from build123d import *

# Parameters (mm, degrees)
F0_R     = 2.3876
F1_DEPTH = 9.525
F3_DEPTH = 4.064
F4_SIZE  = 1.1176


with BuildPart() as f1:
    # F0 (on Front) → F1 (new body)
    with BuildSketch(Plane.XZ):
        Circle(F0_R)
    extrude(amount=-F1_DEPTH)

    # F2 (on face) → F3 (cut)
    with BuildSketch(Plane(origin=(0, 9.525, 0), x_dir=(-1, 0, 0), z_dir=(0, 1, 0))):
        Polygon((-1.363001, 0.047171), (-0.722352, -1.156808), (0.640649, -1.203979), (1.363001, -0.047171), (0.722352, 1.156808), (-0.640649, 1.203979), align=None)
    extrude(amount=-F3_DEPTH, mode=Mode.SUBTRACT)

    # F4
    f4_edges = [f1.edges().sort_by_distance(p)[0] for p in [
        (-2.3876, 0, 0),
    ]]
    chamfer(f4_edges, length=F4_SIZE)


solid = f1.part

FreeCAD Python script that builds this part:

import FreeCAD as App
import Part
import Sketcher
Q = App.Units.Quantity


def edges_at(feature, points):
    """Names of the edges that pass closest to the given points."""
    edges = feature.Shape.Edges
    near = lambda p: min(range(len(edges)), key=lambda i: edges[i].distToShape(Part.Vertex(*p))[0])
    return sorted({f"Edge{near(p) + 1}" for p in points})

doc = App.newDocument("Part")
body = doc.addObject("PartDesign::Body", "Body")

sketch1 = doc.addObject("Sketcher::SketchObject", "Sketch")
body.addObject(sketch1)
sketch1.AttachmentSupport = (doc.XZ_Plane, [""])
sketch1.MapMode = "FlatFace"
sketch1.addGeometry(Part.Circle(App.Vector(0, 0, 0), App.Vector(0, 0, 1), 2.4), False)
sketch1.addConstraint([
    Sketcher.Constraint("Coincident", 0, 3, -1, 1),
    Sketcher.Constraint("Diameter", 0, Q("0.188 in")),
])
pad1 = doc.addObject("PartDesign::Pad", "Pad")
body.addObject(pad1)
pad1.Profile = sketch1
pad1.Length = Q("0.375 in")
pad1.Reversed = True

sketch2 = doc.addObject("Sketcher::SketchObject", "Sketch001")
body.addObject(sketch2)
sketch2.AttachmentSupport = (doc.XZ_Plane, [""])
sketch2.MapMode = "FlatFace"
sketch2.AttachmentOffset = App.Placement(App.Vector(0, 0, -0.375 * 25.4), App.Rotation())
sketch2.addGeometry([
    Part.LineSegment(App.Vector(1.4, 0, 0), App.Vector(0.7, -1.2, 0)),
    Part.LineSegment(App.Vector(0.7, -1.2, 0), App.Vector(-0.6, -1.2, 0)),
    Part.LineSegment(App.Vector(-0.6, -1.2, 0), App.Vector(-1.4, 0, 0)),
    Part.LineSegment(App.Vector(-1.4, 0, 0), App.Vector(-0.7, 1.2, 0)),
    Part.LineSegment(App.Vector(-0.7, 1.2, 0), App.Vector(0.6, 1.2, 0)),
    Part.LineSegment(App.Vector(0.6, 1.2, 0), App.Vector(1.4, 0, 0)),
], False)
sketch2.addConstraint([
    Sketcher.Constraint("Coincident", 0, 2, 1, 1),
    Sketcher.Constraint("Coincident", 1, 2, 2, 1),
    Sketcher.Constraint("Coincident", 2, 2, 3, 1),
    Sketcher.Constraint("Coincident", 3, 2, 4, 1),
    Sketcher.Constraint("Coincident", 4, 2, 5, 1),
    Sketcher.Constraint("Coincident", 5, 2, 0, 1),
    Sketcher.Constraint("Symmetric", 0, 2, 3, 2, -1, 1),
    Sketcher.Constraint("Symmetric", 1, 2, 4, 2, -1, 1),
    Sketcher.Constraint("Symmetric", 2, 2, 5, 2, -1, 1),
    Sketcher.Constraint("Equal", 0, 1),
    Sketcher.Constraint("Equal", 1, 2),
    Sketcher.Constraint("DistanceX", 2, 2, -1, 1, 1.363001),
    Sketcher.Constraint("DistanceX", 1, 2, 0, 2, 1.363001),
    Sketcher.Constraint("DistanceX", -1, 1, 0, 2, 0.722352),
    Sketcher.Constraint("DistanceY", 0, 2, -1, 1, 1.156808),
])
pocket1 = doc.addObject("PartDesign::Pocket", "Pocket")
body.addObject(pocket1)
pocket1.Profile = sketch2
pocket1.Length = Q("0.16 in")
pocket1.Reversed = True
doc.recompute()

chamfer = doc.addObject("PartDesign::Chamfer", "Chamfer")
body.addObject(chamfer)
chamfer.Base = (pocket1, edges_at(pocket1, [(-2.388, 0, 0)]))
chamfer.Size = Q("0.044 in")

doc.recompute()
